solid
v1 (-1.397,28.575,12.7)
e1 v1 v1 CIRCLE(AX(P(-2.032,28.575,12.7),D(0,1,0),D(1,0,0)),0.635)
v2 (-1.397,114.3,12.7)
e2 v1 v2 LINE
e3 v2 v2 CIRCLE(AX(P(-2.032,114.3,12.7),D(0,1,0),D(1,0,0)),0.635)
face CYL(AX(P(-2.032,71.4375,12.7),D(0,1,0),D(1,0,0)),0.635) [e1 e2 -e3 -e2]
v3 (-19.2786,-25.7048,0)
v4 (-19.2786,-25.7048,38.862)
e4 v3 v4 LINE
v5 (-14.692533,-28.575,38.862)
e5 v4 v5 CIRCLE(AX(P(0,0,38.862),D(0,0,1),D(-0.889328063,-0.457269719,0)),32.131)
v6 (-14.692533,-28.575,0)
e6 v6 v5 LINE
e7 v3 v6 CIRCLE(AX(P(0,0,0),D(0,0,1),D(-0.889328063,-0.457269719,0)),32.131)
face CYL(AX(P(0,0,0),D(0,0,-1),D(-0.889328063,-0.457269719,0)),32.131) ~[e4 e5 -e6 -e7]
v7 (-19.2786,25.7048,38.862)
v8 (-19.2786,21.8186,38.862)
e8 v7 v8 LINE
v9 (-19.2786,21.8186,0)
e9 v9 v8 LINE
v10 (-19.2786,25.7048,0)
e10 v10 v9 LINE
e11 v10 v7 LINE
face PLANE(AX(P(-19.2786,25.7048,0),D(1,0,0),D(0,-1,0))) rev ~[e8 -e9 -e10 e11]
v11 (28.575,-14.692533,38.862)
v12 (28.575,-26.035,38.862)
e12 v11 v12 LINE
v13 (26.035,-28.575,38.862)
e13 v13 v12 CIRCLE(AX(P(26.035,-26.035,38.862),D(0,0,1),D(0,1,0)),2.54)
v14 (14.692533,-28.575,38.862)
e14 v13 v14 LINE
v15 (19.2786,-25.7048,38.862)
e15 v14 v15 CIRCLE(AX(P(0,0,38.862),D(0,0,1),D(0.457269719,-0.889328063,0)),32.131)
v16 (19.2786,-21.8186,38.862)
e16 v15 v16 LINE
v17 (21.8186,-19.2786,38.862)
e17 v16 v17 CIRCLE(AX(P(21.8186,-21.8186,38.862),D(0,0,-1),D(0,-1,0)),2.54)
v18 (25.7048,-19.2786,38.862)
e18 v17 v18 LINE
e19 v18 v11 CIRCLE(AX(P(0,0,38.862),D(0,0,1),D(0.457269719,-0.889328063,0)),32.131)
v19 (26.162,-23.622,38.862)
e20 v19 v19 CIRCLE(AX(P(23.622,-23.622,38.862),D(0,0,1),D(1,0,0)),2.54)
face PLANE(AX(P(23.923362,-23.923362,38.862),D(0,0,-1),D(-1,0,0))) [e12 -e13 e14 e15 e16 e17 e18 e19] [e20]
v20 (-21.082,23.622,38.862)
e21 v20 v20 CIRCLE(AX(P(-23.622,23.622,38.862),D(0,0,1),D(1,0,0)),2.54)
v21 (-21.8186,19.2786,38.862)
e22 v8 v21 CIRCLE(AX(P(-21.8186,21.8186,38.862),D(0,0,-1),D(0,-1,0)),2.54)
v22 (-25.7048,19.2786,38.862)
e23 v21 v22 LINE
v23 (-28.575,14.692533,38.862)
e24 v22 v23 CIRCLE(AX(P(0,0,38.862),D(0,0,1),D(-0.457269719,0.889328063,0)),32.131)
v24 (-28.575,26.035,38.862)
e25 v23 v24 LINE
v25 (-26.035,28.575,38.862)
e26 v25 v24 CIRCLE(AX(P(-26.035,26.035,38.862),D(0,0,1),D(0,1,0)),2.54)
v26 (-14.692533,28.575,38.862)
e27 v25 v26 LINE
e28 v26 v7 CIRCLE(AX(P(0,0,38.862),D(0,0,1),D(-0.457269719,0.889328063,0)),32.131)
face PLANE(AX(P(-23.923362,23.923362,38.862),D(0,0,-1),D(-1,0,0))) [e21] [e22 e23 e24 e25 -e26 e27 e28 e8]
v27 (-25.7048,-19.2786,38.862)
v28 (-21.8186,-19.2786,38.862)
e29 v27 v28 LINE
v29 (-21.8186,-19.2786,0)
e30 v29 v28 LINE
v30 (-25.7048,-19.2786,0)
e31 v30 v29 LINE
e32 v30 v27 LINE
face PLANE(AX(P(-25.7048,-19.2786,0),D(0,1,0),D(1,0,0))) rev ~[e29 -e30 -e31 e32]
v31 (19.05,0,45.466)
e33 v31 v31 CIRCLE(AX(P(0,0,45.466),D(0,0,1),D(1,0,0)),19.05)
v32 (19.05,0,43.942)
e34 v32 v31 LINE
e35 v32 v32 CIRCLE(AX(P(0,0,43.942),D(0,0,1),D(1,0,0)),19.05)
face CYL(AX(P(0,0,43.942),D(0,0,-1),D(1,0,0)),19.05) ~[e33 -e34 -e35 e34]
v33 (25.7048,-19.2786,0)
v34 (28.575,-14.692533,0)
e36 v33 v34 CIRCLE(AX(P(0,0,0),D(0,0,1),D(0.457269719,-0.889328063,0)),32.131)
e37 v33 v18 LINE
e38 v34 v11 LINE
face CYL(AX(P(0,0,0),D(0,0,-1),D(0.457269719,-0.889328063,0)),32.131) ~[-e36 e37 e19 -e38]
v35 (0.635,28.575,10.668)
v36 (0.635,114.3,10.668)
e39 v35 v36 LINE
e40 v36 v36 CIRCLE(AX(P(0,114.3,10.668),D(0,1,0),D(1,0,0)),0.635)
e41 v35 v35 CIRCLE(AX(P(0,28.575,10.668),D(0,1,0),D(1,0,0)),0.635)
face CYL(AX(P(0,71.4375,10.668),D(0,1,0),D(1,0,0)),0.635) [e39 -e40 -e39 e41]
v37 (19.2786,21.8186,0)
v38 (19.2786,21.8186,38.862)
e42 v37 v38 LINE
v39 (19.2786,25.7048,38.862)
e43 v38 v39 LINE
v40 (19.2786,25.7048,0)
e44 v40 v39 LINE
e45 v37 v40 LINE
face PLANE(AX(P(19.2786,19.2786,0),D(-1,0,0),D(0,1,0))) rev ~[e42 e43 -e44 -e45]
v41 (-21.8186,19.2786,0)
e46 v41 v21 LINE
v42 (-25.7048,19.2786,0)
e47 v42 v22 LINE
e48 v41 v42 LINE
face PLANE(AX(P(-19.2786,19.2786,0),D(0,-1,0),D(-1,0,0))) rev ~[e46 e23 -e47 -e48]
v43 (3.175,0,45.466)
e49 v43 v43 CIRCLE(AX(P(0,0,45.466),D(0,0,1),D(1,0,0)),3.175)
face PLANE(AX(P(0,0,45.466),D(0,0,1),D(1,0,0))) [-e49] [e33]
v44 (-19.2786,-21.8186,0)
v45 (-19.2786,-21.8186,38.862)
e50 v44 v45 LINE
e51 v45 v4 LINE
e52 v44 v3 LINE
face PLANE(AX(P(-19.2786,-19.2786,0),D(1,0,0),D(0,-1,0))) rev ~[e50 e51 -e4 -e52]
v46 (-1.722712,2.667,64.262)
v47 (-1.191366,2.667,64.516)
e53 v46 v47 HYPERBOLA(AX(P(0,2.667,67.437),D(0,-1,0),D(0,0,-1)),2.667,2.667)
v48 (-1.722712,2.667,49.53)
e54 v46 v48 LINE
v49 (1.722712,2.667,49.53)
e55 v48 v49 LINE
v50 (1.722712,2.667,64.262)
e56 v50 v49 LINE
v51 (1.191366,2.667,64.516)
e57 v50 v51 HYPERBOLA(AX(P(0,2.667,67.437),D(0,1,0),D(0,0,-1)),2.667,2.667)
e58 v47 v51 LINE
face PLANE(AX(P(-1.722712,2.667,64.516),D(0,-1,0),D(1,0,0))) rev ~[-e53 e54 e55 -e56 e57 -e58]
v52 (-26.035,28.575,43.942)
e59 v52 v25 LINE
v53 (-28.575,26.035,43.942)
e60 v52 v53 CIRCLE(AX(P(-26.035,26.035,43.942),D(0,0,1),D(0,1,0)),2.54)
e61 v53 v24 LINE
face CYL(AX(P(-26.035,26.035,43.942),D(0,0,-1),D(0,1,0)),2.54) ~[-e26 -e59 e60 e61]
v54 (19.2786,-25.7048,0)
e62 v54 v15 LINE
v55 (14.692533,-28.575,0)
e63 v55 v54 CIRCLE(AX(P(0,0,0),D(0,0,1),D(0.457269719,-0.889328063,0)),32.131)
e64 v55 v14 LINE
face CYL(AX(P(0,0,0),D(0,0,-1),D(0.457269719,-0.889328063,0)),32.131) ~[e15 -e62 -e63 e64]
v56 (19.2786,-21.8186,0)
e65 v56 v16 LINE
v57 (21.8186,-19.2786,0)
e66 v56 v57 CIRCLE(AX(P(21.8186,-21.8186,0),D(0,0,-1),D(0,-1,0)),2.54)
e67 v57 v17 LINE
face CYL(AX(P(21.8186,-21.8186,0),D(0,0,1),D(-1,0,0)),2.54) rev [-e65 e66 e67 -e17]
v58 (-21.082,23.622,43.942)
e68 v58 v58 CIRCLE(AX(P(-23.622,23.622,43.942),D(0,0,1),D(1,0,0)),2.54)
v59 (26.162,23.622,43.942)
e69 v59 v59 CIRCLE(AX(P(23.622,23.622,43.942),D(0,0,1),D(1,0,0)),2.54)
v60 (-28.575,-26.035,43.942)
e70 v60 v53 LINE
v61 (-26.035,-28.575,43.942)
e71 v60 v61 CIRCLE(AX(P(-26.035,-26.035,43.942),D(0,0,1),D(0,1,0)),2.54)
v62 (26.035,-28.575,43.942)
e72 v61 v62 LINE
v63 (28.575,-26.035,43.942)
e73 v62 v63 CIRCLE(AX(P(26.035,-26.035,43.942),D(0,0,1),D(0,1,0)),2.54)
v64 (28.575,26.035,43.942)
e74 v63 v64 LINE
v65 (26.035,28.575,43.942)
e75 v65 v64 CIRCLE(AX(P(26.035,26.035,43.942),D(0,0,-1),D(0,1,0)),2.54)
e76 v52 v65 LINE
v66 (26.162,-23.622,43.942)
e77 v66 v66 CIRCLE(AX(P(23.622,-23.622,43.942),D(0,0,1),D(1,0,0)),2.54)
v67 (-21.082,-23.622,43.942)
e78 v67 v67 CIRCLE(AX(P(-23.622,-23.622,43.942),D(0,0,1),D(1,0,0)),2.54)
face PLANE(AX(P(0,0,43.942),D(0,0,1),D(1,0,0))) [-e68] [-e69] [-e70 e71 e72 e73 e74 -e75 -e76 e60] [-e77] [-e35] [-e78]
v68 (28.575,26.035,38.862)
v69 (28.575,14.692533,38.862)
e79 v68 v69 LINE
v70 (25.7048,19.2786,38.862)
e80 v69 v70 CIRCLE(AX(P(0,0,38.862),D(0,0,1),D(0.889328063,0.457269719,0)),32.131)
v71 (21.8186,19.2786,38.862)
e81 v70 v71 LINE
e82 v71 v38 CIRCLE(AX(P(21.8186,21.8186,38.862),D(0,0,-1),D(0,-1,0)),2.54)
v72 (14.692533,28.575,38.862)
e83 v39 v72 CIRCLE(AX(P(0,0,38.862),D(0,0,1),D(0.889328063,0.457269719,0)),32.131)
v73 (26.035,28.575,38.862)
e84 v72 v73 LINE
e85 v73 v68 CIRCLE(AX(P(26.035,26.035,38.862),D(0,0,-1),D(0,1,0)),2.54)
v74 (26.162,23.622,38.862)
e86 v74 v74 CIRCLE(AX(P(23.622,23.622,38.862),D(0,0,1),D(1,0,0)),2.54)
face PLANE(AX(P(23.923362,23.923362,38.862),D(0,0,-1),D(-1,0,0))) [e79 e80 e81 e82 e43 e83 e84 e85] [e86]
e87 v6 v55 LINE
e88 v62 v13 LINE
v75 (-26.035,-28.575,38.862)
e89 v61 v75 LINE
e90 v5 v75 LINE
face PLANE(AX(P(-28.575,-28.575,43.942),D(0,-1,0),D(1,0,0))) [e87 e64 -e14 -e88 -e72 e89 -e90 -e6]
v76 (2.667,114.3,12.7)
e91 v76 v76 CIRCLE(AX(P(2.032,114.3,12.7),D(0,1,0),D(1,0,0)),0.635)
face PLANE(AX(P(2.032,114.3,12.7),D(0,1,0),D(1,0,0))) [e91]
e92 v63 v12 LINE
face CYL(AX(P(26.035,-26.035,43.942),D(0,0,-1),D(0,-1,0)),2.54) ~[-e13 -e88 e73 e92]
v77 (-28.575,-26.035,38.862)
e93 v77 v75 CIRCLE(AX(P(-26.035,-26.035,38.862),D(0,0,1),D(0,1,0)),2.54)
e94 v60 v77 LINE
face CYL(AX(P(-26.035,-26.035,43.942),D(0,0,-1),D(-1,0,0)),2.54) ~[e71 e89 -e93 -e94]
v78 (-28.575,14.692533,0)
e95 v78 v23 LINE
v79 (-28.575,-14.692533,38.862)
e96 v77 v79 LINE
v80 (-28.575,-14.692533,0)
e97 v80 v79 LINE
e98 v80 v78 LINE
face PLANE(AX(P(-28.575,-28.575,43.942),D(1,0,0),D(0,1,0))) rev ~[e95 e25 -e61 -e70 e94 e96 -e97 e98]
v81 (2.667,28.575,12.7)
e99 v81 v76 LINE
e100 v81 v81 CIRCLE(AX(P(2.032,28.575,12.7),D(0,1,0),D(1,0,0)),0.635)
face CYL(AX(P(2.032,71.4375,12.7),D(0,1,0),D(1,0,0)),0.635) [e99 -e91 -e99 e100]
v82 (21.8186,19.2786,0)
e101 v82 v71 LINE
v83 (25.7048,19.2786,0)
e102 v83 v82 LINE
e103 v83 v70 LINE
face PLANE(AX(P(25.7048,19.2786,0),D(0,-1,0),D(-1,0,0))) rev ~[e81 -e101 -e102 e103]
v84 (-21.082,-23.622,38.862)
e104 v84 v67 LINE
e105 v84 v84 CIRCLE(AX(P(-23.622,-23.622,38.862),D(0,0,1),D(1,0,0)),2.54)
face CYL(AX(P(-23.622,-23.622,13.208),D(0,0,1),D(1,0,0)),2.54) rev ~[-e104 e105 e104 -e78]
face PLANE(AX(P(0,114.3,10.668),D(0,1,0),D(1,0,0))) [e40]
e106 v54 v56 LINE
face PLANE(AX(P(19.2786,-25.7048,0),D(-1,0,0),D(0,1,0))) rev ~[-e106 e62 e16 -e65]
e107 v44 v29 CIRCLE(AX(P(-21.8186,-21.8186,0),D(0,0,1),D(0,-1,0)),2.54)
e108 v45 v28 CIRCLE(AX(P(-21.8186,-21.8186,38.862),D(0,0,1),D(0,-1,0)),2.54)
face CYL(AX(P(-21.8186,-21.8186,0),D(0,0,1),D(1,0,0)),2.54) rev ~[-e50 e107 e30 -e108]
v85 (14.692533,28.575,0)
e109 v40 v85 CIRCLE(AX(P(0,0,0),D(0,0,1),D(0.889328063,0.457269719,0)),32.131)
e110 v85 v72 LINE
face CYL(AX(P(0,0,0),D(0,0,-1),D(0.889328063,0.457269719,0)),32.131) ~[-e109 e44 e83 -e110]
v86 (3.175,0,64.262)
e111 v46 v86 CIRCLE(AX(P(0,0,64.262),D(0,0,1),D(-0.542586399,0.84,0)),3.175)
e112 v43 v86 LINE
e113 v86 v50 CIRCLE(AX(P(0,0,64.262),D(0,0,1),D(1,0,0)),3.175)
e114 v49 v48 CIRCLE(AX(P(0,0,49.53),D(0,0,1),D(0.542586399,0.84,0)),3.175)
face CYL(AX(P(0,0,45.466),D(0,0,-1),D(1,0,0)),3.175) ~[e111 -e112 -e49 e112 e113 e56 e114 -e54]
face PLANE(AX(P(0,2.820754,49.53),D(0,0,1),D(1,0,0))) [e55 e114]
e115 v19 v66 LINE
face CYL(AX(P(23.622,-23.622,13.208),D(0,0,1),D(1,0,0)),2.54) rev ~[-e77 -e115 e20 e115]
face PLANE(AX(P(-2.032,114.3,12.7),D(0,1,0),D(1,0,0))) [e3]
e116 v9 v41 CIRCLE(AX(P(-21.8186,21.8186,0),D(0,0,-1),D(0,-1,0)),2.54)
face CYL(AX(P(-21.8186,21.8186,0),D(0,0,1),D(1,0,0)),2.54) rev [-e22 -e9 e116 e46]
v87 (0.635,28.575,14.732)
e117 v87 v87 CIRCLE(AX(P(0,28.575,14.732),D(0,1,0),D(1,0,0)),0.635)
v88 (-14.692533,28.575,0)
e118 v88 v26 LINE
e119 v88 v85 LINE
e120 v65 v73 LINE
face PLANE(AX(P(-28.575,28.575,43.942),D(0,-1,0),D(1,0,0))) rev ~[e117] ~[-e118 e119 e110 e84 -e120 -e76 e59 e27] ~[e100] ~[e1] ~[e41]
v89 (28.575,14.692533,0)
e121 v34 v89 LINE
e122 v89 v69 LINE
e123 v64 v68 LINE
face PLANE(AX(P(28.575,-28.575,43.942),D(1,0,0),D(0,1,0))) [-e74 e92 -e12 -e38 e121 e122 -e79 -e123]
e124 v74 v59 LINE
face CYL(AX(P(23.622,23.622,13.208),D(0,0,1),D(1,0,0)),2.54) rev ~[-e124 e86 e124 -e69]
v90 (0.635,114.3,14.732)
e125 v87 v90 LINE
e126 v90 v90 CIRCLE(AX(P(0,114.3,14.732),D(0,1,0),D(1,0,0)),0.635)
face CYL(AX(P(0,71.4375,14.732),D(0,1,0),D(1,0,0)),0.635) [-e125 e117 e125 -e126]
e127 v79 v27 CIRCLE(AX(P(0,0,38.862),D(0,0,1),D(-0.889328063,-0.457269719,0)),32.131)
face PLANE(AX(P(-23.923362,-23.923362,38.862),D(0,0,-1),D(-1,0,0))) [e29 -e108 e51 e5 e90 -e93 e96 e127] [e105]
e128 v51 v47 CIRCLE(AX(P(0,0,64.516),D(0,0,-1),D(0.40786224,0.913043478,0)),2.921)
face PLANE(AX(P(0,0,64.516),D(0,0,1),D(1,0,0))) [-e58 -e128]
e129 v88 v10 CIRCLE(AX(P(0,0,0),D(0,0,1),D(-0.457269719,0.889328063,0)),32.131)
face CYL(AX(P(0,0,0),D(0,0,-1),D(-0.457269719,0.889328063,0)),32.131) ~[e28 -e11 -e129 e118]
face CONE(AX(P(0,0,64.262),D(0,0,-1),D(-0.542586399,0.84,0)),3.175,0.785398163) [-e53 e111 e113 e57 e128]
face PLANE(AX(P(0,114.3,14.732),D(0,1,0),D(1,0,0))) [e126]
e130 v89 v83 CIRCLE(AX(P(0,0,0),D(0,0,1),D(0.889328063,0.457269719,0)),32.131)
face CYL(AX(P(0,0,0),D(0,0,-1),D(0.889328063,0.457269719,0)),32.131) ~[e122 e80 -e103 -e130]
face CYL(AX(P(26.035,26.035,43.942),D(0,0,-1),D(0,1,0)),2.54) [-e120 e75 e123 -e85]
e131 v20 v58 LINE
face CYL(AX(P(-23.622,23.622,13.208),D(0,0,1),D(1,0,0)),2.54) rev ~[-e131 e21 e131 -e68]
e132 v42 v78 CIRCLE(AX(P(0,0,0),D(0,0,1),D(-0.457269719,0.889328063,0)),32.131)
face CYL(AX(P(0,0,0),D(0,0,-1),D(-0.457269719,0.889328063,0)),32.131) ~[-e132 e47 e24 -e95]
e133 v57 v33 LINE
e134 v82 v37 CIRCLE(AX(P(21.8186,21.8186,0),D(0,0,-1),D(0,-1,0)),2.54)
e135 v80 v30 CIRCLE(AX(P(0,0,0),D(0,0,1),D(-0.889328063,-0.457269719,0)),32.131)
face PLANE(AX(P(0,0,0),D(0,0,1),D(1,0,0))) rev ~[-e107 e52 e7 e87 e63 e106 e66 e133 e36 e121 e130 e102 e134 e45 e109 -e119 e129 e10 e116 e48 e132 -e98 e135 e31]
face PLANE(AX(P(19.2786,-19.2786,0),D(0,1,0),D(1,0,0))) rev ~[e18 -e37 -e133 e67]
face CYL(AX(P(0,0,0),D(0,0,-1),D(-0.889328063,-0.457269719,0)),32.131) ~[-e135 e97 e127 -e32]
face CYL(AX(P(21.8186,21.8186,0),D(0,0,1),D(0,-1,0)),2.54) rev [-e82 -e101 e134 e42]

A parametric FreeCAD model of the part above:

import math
import FreeCAD as App
import Part
import Sketcher
Q = App.Units.Quantity


def edges_at(feature, points):
    """Names of the edges that pass closest to the given points."""
    edges = feature.Shape.Edges
    near = lambda p: min(range(len(edges)), key=lambda i: edges[i].distToShape(Part.Vertex(*p))[0])
    return sorted({f"Edge{near(p) + 1}" for p in points})


def add_polygon(sketch, points):
    """Adds a closed chain of lines whose ends are joined by coincident constraints."""
    first, n = sketch.GeometryCount, len(points)
    for a, b in zip(points, points[1:] + points[:1]):
        sketch.addGeometry(Part.LineSegment(App.Vector(*a, 0), App.Vector(*b, 0)), False)
    for i in range(n):
        sketch.addConstraint(Sketcher.Constraint("Coincident", first + i, 2, first + (i + 1) % n, 1))

doc = App.newDocument("Part")
body = doc.addObject("PartDesign::Body", "Body")

# Sketch on XY plane
sketch1 = body.newObject("Sketcher::SketchObject", "Sketch")
sketch1.AttachmentSupport = (doc.getObject("XY_Plane"), [""])
sketch1.MapMode = "FlatFace"
sketch1.AttachmentOffset = App.Placement(App.Vector(0, 0, 1.73 * 25.4), App.Rotation())
add_polygon(sketch1, [(-29, 29), (-29, -29), (29, -29), (29, 29)])  # lines 0-3
sketch1.addConstraint(Sketcher.Constraint("Vertical", 0))
sketch1.addConstraint(Sketcher.Constraint("Horizontal", 1))
sketch1.addConstraint(Sketcher.Constraint("Vertical", 2))
sketch1.addConstraint(Sketcher.Constraint("Horizontal", 3))
sketch1.addConstraint(Sketcher.Constraint("Symmetric", 0, 2, 2, 2, -1, 1))
sketch1.addConstraint(Sketcher.Constraint("Equal", 3, 0))
sketch1.addConstraint(Sketcher.Constraint("DistanceX", 1, 1, 1, 2, Q("2.25 in")))
pad1 = body.newObject("PartDesign::Pad", "Pad")
pad1.Profile = sketch1
pad1.Length = Q("1.73 in")
pad1.Reversed = True

# Sketch on XY plane
sketch2 = body.newObject("Sketcher::SketchObject", "Sketch001")
sketch2.AttachmentSupport = (doc.getObject("XY_Plane"), [""])
sketch2.MapMode = "FlatFace"
sketch2.addGeometry(Part.LineSegment(App.Vector(29, -29, 0), App.Vector(15, -29, 0)), False)
sketch2.addGeometry(Part.ArcOfCircle(Part.Circle(App.Vector(0, 0, 0), App.Vector(0, 0, 1), 32), math.radians(-63), math.radians(-27)), False)
sketch2.addGeometry(Part.LineSegment(App.Vector(29, -15, 0), App.Vector(29, -29, 0)), False)
sketch2.addConstraint(Sketcher.Constraint("Coincident", 0, 2, 1, 1))
sketch2.addConstraint(Sketcher.Constraint("Coincident", 1, 2, 2, 1))
sketch2.addConstraint(Sketcher.Constraint("Coincident", 2, 2, 0, 1))
sketch2.addConstraint(Sketcher.Constraint("Horizontal", 0))
sketch2.addConstraint(Sketcher.Constraint("Vertical", 2))
sketch2.addConstraint(Sketcher.Constraint("Coincident", 1, 3, -1, 1))
sketch2.addConstraint(Sketcher.Constraint("Equal", 0, 2))
sketch2.addConstraint(Sketcher.Constraint("Radius", 1, Q("1.265 in")))
sketch2.addConstraint(Sketcher.Constraint("DistanceY", 0, 2, -1, 1, Q("1.125 in")))
pocket1 = body.newObject("PartDesign::Pocket", "Pocket")
pocket1.Profile = sketch2
pocket1.Length = Q("1.53 in")
pocket1.Reversed = True

# Sketch on XY plane
sketch3 = body.newObject("Sketcher::SketchObject", "Sketch002")
sketch3.AttachmentSupport = (doc.getObject("XY_Plane"), [""])
sketch3.MapMode = "FlatFace"
sketch3.addGeometry(Part.LineSegment(App.Vector(19, -26, 0), App.Vector(19, -19, 0)), False)
sketch3.addGeometry(Part.LineSegment(App.Vector(19, -19, 0), App.Vector(26, -19, 0)), False)
sketch3.addGeometry(Part.ArcOfCircle(Part.Circle(App.Vector(0, 0, 0), App.Vector(0, 0, 1), 32), math.radians(-53.13), math.radians(-36.87)), False)
sketch3.addConstraint(Sketcher.Constraint("Coincident", 0, 2, 1, 1))
sketch3.addConstraint(Sketcher.Constraint("Coincident", 1, 2, 2, 2))
sketch3.addConstraint(Sketcher.Constraint("Coincident", 2, 1, 0, 1))
sketch3.addConstraint(Sketcher.Constraint("Vertical", 0))
sketch3.addConstraint(Sketcher.Constraint("Horizontal", 1))
sketch3.addConstraint(Sketcher.Constraint("Coincident", 2, 3, -1, 1))
sketch3.addConstraint(Sketcher.Constraint("Equal", 1, 0))
sketch3.addConstraint(Sketcher.Constraint("Radius", 2, Q("1.265 in")))
sketch3.addConstraint(Sketcher.Constraint("DistanceX", 1, 1, 1, 2, Q("0.253 in")))
pocket2 = body.newObject("PartDesign::Pocket", "Pocket001")
pocket2.Profile = sketch3
pocket2.Length = Q("1.53 in")
pocket2.Reversed = True

# Sketch on XY plane
sketch4 = body.newObject("Sketcher::SketchObject", "Sketch003")
sketch4.AttachmentSupport = (doc.getObject("XY_Plane"), [""])
sketch4.MapMode = "FlatFace"
sketch4.addGeometry(Part.LineSegment(App.Vector(29, 29, 0), App.Vector(29, 15, 0)), False)
sketch4.addGeometry(Part.ArcOfCircle(Part.Circle(App.Vector(0, 0, 0), App.Vector(0, 0, 1), 32), math.radians(27), math.radians(63)), False)
sketch4.addGeometry(Part.LineSegment(App.Vector(15, 29, 0), App.Vector(29, 29, 0)), False)
sketch4.addConstraint(Sketcher.Constraint("Coincident", 0, 2, 1, 1))
sketch4.addConstraint(Sketcher.Constraint("Coincident", 1, 2, 2, 1))
sketch4.addConstraint(Sketcher.Constraint("Coincident", 2, 2, 0, 1))
sketch4.addConstraint(Sketcher.Constraint("Vertical", 0))
sketch4.addConstraint(Sketcher.Constraint("Horizontal", 2))
sketch4.addConstraint(Sketcher.Constraint("Coincident", 1, 3, -1, 1))
sketch4.addConstraint(Sketcher.Constraint("Equal", 2, 0))
sketch4.addConstraint(Sketcher.Constraint("Radius", 1, Q("1.265 in")))
sketch4.addConstraint(Sketcher.Constraint("DistanceX", -1, 1, 0, 2, Q("1.125 in")))
pocket3 = body.newObject("PartDesign::Pocket", "Pocket002")
pocket3.Profile = sketch4
pocket3.Length = Q("1.53 in")
pocket3.Reversed = True

# Sketch on XY plane
sketch5 = body.newObject("Sketcher::SketchObject", "Sketch004")
sketch5.AttachmentSupport = (doc.getObject("XY_Plane"), [""])
sketch5.MapMode = "FlatFace"
sketch5.addGeometry(Part.LineSegment(App.Vector(26, 19, 0), App.Vector(19, 19, 0)), False)
sketch5.addGeometry(Part.LineSegment(App.Vector(19, 19, 0), App.Vector(19, 26, 0)), False)
sketch5.addGeometry(Part.ArcOfCircle(Part.Circle(App.Vector(0, 0, 0), App.Vector(0, 0, 1), 32), math.radians(36.87), math.radians(53.13)), False)
sketch5.addConstraint(Sketcher.Constraint("Coincident", 0, 2, 1, 1))
sketch5.addConstraint(Sketcher.Constraint("Coincident", 1, 2, 2, 2))
sketch5.addConstraint(Sketcher.Constraint("Coincident", 2, 1, 0, 1))
sketch5.addConstraint(Sketcher.Constraint("Horizontal", 0))
sketch5.addConstraint(Sketcher.Constraint("Vertical", 1))
sketch5.addConstraint(Sketcher.Constraint("Coincident", 2, 3, -1, 1))
sketch5.addConstraint(Sketcher.Constraint("Equal", 0, 1))
sketch5.addConstraint(Sketcher.Constraint("Radius", 2, Q("1.265 in")))
sketch5.addConstraint(Sketcher.Constraint("DistanceX", 0, 2, 0, 1, Q("0.253 in")))
pocket4 = body.newObject("PartDesign::Pocket", "Pocket003")
pocket4.Profile = sketch5
pocket4.Length = Q("1.53 in")
pocket4.Reversed = True

# Sketch on XY plane
sketch6 = body.newObject("Sketcher::SketchObject", "Sketch005")
sketch6.AttachmentSupport = (doc.getObject("XY_Plane"), [""])
sketch6.MapMode = "FlatFace"
sketch6.addGeometry(Part.LineSegment(App.Vector(-29, 29, 0), App.Vector(-15, 29, 0)), False)
sketch6.addGeometry(Part.ArcOfCircle(Part.Circle(App.Vector(0, 0, 0), App.Vector(0, 0, 1), 32), math.radians(117), math.radians(153)), False)
sketch6.addGeometry(Part.LineSegment(App.Vector(-29, 15, 0), App.Vector(-29, 29, 0)), False)
sketch6.addConstraint(Sketcher.Constraint("Coincident", 0, 2, 1, 1))
sketch6.addConstraint(Sketcher.Constraint("Coincident", 1, 2, 2, 1))
sketch6.addConstraint(Sketcher.Constraint("Coincident", 2, 2, 0, 1))
sketch6.addConstraint(Sketcher.Constraint("Horizontal", 0))
sketch6.addConstraint(Sketcher.Constraint("Vertical", 2))
sketch6.addConstraint(Sketcher.Constraint("Coincident", 1, 3, -1, 1))
sketch6.addConstraint(Sketcher.Constraint("Equal", 0, 2))
sketch6.addConstraint(Sketcher.Constraint("Radius", 1, Q("1.265 in")))
sketch6.addConstraint(Sketcher.Constraint("DistanceY", -1, 1, 0, 2, Q("1.125 in")))
pocket5 = body.newObject("PartDesign::Pocket", "Pocket004")
pocket5.Profile = sketch6
pocket5.Length = Q("1.53 in")
pocket5.Reversed = True

# Sketch on XY plane
sketch7 = body.newObject("Sketcher::SketchObject", "Sketch006")
sketch7.AttachmentSupport = (doc.getObject("XY_Plane"), [""])
sketch7.MapMode = "FlatFace"
sketch7.addGeometry(Part.LineSegment(App.Vector(-19, 26, 0), App.Vector(-19, 19, 0)), False)
sketch7.addGeometry(Part.LineSegment(App.Vector(-19, 19, 0), App.Vector(-26, 19, 0)), False)
sketch7.addGeometry(Part.ArcOfCircle(Part.Circle(App.Vector(0, 0, 0), App.Vector(0, 0, 1), 32), math.radians(126.87), math.radians(143.13)), False)
sketch7.addConstraint(Sketcher.Constraint("Coincident", 0, 2, 1, 1))
sketch7.addConstraint(Sketcher.Constraint("Coincident", 1, 2, 2, 2))
sketch7.addConstraint(Sketcher.Constraint("Coincident", 2, 1, 0, 1))
sketch7.addConstraint(Sketcher.Constraint("Vertical", 0))
sketch7.addConstraint(Sketcher.Constraint("Horizontal", 1))
sketch7.addConstraint(Sketcher.Constraint("Coincident", 2, 3, -1, 1))
sketch7.addConstraint(Sketcher.Constraint("Equal", 1, 0))
sketch7.addConstraint(Sketcher.Constraint("Radius", 2, Q("1.265 in")))
sketch7.addConstraint(Sketcher.Constraint("DistanceX", 1, 2, 1, 1, Q("0.253 in")))
pocket6 = body.newObject("PartDesign::Pocket", "Pocket005")
pocket6.Profile = sketch7
pocket6.Length = Q("1.53 in")
pocket6.Reversed = True

# Sketch on XY plane
sketch8 = body.newObject("Sketcher::SketchObject", "Sketch007")
sketch8.AttachmentSupport = (doc.getObject("XY_Plane"), [""])
sketch8.MapMode = "FlatFace"
sketch8.addGeometry(Part.LineSegment(App.Vector(-29, -29, 0), App.Vector(-29, -15, 0)), False)
sketch8.addGeometry(Part.ArcOfCircle(Part.Circle(App.Vector(0, 0, 0), App.Vector(0, 0, 1), 32), math.radians(-153), math.radians(-117)), False)
sketch8.addGeometry(Part.LineSegment(App.Vector(-15, -29, 0), App.Vector(-29, -29, 0)), False)
sketch8.addConstraint(Sketcher.Constraint("Coincident", 0, 2, 1, 1))
sketch8.addConstraint(Sketcher.Constraint("Coincident", 1, 2, 2, 1))
sketch8.addConstraint(Sketcher.Constraint("Coincident", 2, 2, 0, 1))
sketch8.addConstraint(Sketcher.Constraint("Vertical", 0))
sketch8.addConstraint(Sketcher.Constraint("Horizontal", 2))
sketch8.addConstraint(Sketcher.Constraint("Coincident", 1, 3, -1, 1))
sketch8.addConstraint(Sketcher.Constraint("Equal", 2, 0))
sketch8.addConstraint(Sketcher.Constraint("Radius", 1, Q("1.265 in")))
sketch8.addConstraint(Sketcher.Constraint("DistanceX", 0, 2, -1, 1, Q("1.125 in")))
pocket7 = body.newObject("PartDesign::Pocket", "Pocket006")
pocket7.Profile = sketch8
pocket7.Length = Q("1.53 in")
pocket7.Reversed = True

# Sketch on XY plane
sketch9 = body.newObject("Sketcher::SketchObject", "Sketch008")
sketch9.AttachmentSupport = (doc.getObject("XY_Plane"), [""])
sketch9.MapMode = "FlatFace"
sketch9.addGeometry(Part.LineSegment(App.Vector(-26, -19, 0), App.Vector(-19, -19, 0)), False)
sketch9.addGeometry(Part.LineSegment(App.Vector(-19, -19, 0), App.Vector(-19, -26, 0)), False)
sketch9.addGeometry(Part.ArcOfCircle(Part.Circle(App.Vector(0, 0, 0), App.Vector(0, 0, 1), 32), math.radians(-143.13), math.radians(-126.87)), False)
sketch9.addConstraint(Sketcher.Constraint("Coincident", 0, 2, 1, 1))
sketch9.addConstraint(Sketcher.Constraint("Coincident", 1, 2, 2, 2))
sketch9.addConstraint(Sketcher.Constraint("Coincident", 2, 1, 0, 1))
sketch9.addConstraint(Sketcher.Constraint("Horizontal", 0))
sketch9.addConstraint(Sketcher.Constraint("Vertical", 1))
sketch9.addConstraint(Sketcher.Constraint("Coincident", 2, 3, -1, 1))
sketch9.addConstraint(Sketcher.Constraint("Equal", 0, 1))
sketch9.addConstraint(Sketcher.Constraint("Radius", 2, Q("1.265 in")))
sketch9.addConstraint(Sketcher.Constraint("DistanceX", 0, 1, 0, 2, Q("0.253 in")))
pocket8 = body.newObject("PartDesign::Pocket", "Pocket007")
pocket8.Profile = sketch9
pocket8.Length = Q("1.53 in")
pocket8.Reversed = True

# Sketch on XY plane
sketch10 = body.newObject("Sketcher::SketchObject", "Sketch009")
sketch10.AttachmentSupport = (doc.getObject("XY_Plane"), [""])
sketch10.MapMode = "FlatFace"
sketch10.AttachmentOffset = App.Placement(App.Vector(0, 0, 1.73 * 25.4), App.Rotation())
sketch10.addGeometry(Part.Circle(App.Vector(0, 0, 0), App.Vector(0, 0, 1), 19), False)
sketch10.addConstraint(Sketcher.Constraint("Coincident", 0, 3, -1, 1))
sketch10.addConstraint(Sketcher.Constraint("Diameter", 0, Q("1.5 in")))
pad2 = body.newObject("PartDesign::Pad", "Pad001")
pad2.Profile = sketch10
pad2.Length = Q("0.06 in")

# Sketch on XY plane
sketch11 = body.newObject("Sketcher::SketchObject", "Sketch010")
sketch11.AttachmentSupport = (doc.getObject("XY_Plane"), [""])
sketch11.MapMode = "FlatFace"
sketch11.AttachmentOffset = App.Placement(App.Vector(0, 0, 1.79 * 25.4), App.Rotation())
sketch11.addGeometry(Part.Circle(App.Vector(0, 0, 0), App.Vector(0, 0, 1), 3.2), False)
sketch11.addConstraint(Sketcher.Constraint("Coincident", 0, 3, -1, 1))
sketch11.addConstraint(Sketcher.Constraint("Diameter", 0, Q("0.25 in")))
pad3 = body.newObject("PartDesign::Pad", "Pad002")
pad3.Profile = sketch11
pad3.Length = Q("0.75 in")

# Sketch on XY plane
sketch12 = body.newObject("Sketcher::SketchObject", "Sketch011")
sketch12.AttachmentSupport = (doc.getObject("XY_Plane"), [""])
sketch12.MapMode = "FlatFace"
sketch12.AttachmentOffset = App.Placement(App.Vector(0, 0, 2.54 * 25.4), App.Rotation())
sketch12.addGeometry(Part.LineSegment(App.Vector(-1.7, 2.7, 0), App.Vector(1.7, 2.7, 0)), False)
sketch12.addGeometry(Part.ArcOfCircle(Part.Circle(App.Vector(0, 0, 0), App.Vector(0, 0, 1), 3.2), math.radians(57), math.radians(123)), False)
sketch12.addConstraint(Sketcher.Constraint("Coincident", 0, 1, 1, 2))
sketch12.addConstraint(Sketcher.Constraint("Coincident", 1, 1, 0, 2))
sketch12.addConstraint(Sketcher.Constraint("Horizontal", 0))
sketch12.addConstraint(Sketcher.Constraint("Coincident", 1, 3, -1, 1))
sketch12.addConstraint(Sketcher.Constraint("Radius", 1, Q("0.125 in")))
sketch12.addConstraint(Sketcher.Constraint("DistanceY", -1, 1, 0, 1, Q("0.105 in")))
pocket9 = body.newObject("PartDesign::Pocket", "Pocket008")
pocket9.Profile = sketch12
pocket9.Length = Q("0.59 in")

# Sketch on XY plane
sketch13 = body.newObject("Sketcher::SketchObject", "Sketch012")
sketch13.AttachmentSupport = (doc.getObject("XY_Plane"), [""])
sketch13.MapMode = "FlatFace"
sketch13.AttachmentOffset = App.Placement(App.Vector(0, 0, 0.5 * 25.4), App.Rotation())
add_polygon(sketch13, [(-1.4, 114.3), (-1.4, 28.6), (-2, 28.6), (-2, 114.3)])  # lines 0-3
sketch13.addGeometry(Part.LineSegment(App.Vector(-2, 28.6, 0), App.Vector(-2, 114.3, 0)), True)  # axis
sketch13.addConstraint(Sketcher.Constraint("Vertical", 0))
sketch13.addConstraint(Sketcher.Constraint("Horizontal", 1))
sketch13.addConstraint(Sketcher.Constraint("Vertical", 2))
sketch13.addConstraint(Sketcher.Constraint("Horizontal", 3))
sketch13.addConstraint(Sketcher.Constraint("Vertical", 4))
sketch13.addConstraint(Sketcher.Constraint("Coincident", 4, 1, 1, 2))
sketch13.addConstraint(Sketcher.Constraint("Horizontal", 3, 2, 4, 2))
sketch13.addConstraint(Sketcher.Constraint("DistanceY", -1, 1, 2, 2, Q("4.5 in")))
sketch13.addConstraint(Sketcher.Constraint("DistanceX", 1, 2, 1, 1, Q("0.025 in")))
sketch13.addConstraint(Sketcher.Constraint("DistanceY", 0, 2, 0, 1, Q("3.375 in")))
sketch13.addConstraint(Sketcher.Constraint("DistanceX", 1, 2, -1, 1, Q("0.08 in")))
revolution = body.newObject("PartDesign::Revolution", "Revolution")
revolution.Profile = sketch13
revolution.ReferenceAxis = (sketch13, ["Axis0"])
revolution.Angle = 360

# Sketch on XY plane
sketch14 = body.newObject("Sketcher::SketchObject", "Sketch013")
sketch14.AttachmentSupport = (doc.getObject("XY_Plane"), [""])
sketch14.MapMode = "FlatFace"
sketch14.AttachmentOffset = App.Placement(App.Vector(0, 0, 0.5 * 25.4), App.Rotation())
add_polygon(sketch14, [(2.7, 114.3), (2.7, 28.6), (2, 28.6), (2, 114.3)])  # lines 0-3
sketch14.addGeometry(Part.LineSegment(App.Vector(2, 28.6, 0), App.Vector(2, 114.3, 0)), True)  # axis
sketch14.addConstraint(Sketcher.Constraint("Vertical", 0))
sketch14.addConstraint(Sketcher.Constraint("Horizontal", 1))
sketch14.addConstraint(Sketcher.Constraint("Vertical", 2))
sketch14.addConstraint(Sketcher.Constraint("Horizontal", 3))
sketch14.addConstraint(Sketcher.Constraint("Vertical", 4))
sketch14.addConstraint(Sketcher.Constraint("Coincident", 4, 1, 1, 2))
sketch14.addConstraint(Sketcher.Constraint("Horizontal", 3, 2, 4, 2))
sketch14.addConstraint(Sketcher.Constraint("DistanceY", -1, 1, 2, 2, Q("4.5 in")))
sketch14.addConstraint(Sketcher.Constraint("DistanceX", 1, 2, 1, 1, Q("0.025 in")))
sketch14.addConstraint(Sketcher.Constraint("DistanceY", 0, 2, 0, 1, Q("3.375 in")))
sketch14.addConstraint(Sketcher.Constraint("DistanceX", -1, 1, 1, 2, Q("0.08 in")))
revolution2 = body.newObject("PartDesign::Revolution", "Revolution001")
revolution2.Profile = sketch14
revolution2.ReferenceAxis = (sketch14, ["Axis0"])
revolution2.Angle = 360

# Sketch on XY plane
sketch15 = body.newObject("Sketcher::SketchObject", "Sketch014")
sketch15.AttachmentSupport = (doc.getObject("XY_Plane"), [""])
sketch15.MapMode = "FlatFace"
sketch15.AttachmentOffset = App.Placement(App.Vector(0, 0, 0.58 * 25.4), App.Rotation())
add_polygon(sketch15, [(0.6, 114.3), (0.6, 28.6), (0, 28.6), (0, 114.3)])  # lines 0-3
sketch15.addConstraint(Sketcher.Constraint("Vertical", 0))
sketch15.addConstraint(Sketcher.Constraint("Horizontal", 1))
sketch15.addConstraint(Sketcher.Constraint("Vertical", 2))
sketch15.addConstraint(Sketcher.Constraint("Horizontal", 3))
sketch15.addConstraint(Sketcher.Constraint("PointOnObject", 1, 2, -2))
sketch15.addConstraint(Sketcher.Constraint("DistanceY", -1, 1, 2, 2, Q("4.5 in")))
sketch15.addConstraint(Sketcher.Constraint("DistanceX", 1, 2, 1, 1, Q("0.025 in")))
sketch15.addConstraint(Sketcher.Constraint("DistanceY", 0, 2, 0, 1, Q("3.375 in")))
revolution3 = body.newObject("PartDesign::Revolution", "Revolution002")
revolution3.Profile = sketch15
revolution3.ReferenceAxis = (sketch15, ["V_Axis"])
revolution3.Angle = 360

# Sketch on XY plane
sketch16 = body.newObject("Sketcher::SketchObject", "Sketch015")
sketch16.AttachmentSupport = (doc.getObject("XY_Plane"), [""])
sketch16.MapMode = "FlatFace"
sketch16.AttachmentOffset = App.Placement(App.Vector(0, 0, 0.42 * 25.4), App.Rotation())
add_polygon(sketch16, [(0.6, 114.3), (0.6, 28.6), (0, 28.6), (0, 114.3)])  # lines 0-3
sketch16.addConstraint(Sketcher.Constraint("Vertical", 0))
sketch16.addConstraint(Sketcher.Constraint("Horizontal", 1))
sketch16.addConstraint(Sketcher.Constraint("Vertical", 2))
sketch16.addConstraint(Sketcher.Constraint("Horizontal", 3))
sketch16.addConstraint(Sketcher.Constraint("PointOnObject", 1, 2, -2))
sketch16.addConstraint(Sketcher.Constraint("DistanceY", -1, 1, 2, 2, Q("4.5 in")))
sketch16.addConstraint(Sketcher.Constraint("DistanceX", 1, 2, 1, 1, Q("0.025 in")))
sketch16.addConstraint(Sketcher.Constraint("DistanceY", 0, 2, 0, 1, Q("3.375 in")))
revolution4 = body.newObject("PartDesign::Revolution", "Revolution003")
revolution4.Profile = sketch16
revolution4.ReferenceAxis = (sketch16, ["V_Axis"])
revolution4.Angle = 360

# Sketch on XY plane
sketch17 = body.newObject("Sketcher::SketchObject", "Sketch016")
sketch17.AttachmentSupport = (doc.getObject("XY_Plane"), [""])
sketch17.MapMode = "FlatFace"
sketch17.AttachmentOffset = App.Placement(App.Vector(0, 0, 1.53 * 25.4), App.Rotation())
sketch17.addGeometry(Part.Circle(App.Vector(-23.6, -23.6, 0), App.Vector(0, 0, 1), 2.5), False)
sketch17.addConstraint(Sketcher.Constraint("Diameter", 0, Q("0.2 in")))
sketch17.addConstraint(Sketcher.Constraint("DistanceX", 0, 3, -1, 1, Q("0.93 in")))
sketch17.addConstraint(Sketcher.Constraint("DistanceY", 0, 3, -1, 1, Q("0.93 in")))
doc.recompute()
hole = body.newObject("PartDesign::Hole", "Hole")
hole.Profile = sketch17
hole.ThreadType = "None"
hole.Diameter = Q("0.2 in")
hole.DepthType = "Dimension"
hole.Depth = Q("1.01 in")
hole.DrillPoint = "Flat"
hole.Reversed = True

# Sketch on XY plane
sketch18 = body.newObject("Sketcher::SketchObject", "Sketch017")
sketch18.AttachmentSupport = (doc.getObject("XY_Plane"), [""])
sketch18.MapMode = "FlatFace"
sketch18.AttachmentOffset = App.Placement(App.Vector(0, 0, 1.53 * 25.4), App.Rotation())
sketch18.addGeometry(Part.Circle(App.Vector(-23.6, 23.6, 0), App.Vector(0, 0, 1), 2.5), False)
sketch18.addConstraint(Sketcher.Constraint("Diameter", 0, Q("0.2 in")))
sketch18.addConstraint(Sketcher.Constraint("DistanceX", 0, 3, -1, 1, Q("0.93 in")))
sketch18.addConstraint(Sketcher.Constraint("DistanceY", -1, 1, 0, 3, Q("0.93 in")))
doc.recompute()
hole2 = body.newObject("PartDesign::Hole", "Hole001")
hole2.Profile = sketch18
hole2.ThreadType = "None"
hole2.Diameter = Q("0.2 in")
hole2.DepthType = "Dimension"
hole2.Depth = Q("1.01 in")
hole2.DrillPoint = "Flat"
hole2.Reversed = True

# Sketch on XY plane
sketch19 = body.newObject("Sketcher::SketchObject", "Sketch018")
sketch19.AttachmentSupport = (doc.getObject("XY_Plane"), [""])
sketch19.MapMode = "FlatFace"
sketch19.AttachmentOffset = App.Placement(App.Vector(0, 0, 1.53 * 25.4), App.Rotation())
sketch19.addGeometry(Part.Circle(App.Vector(23.6, 23.6, 0), App.Vector(0, 0, 1), 2.5), False)
sketch19.addConstraint(Sketcher.Constraint("Diameter", 0, Q("0.2 in")))
sketch19.addConstraint(Sketcher.Constraint("DistanceX", -1, 1, 0, 3, Q("0.93 in")))
sketch19.addConstraint(Sketcher.Constraint("DistanceY", -1, 1, 0, 3, Q("0.93 in")))
doc.recompute()
hole3 = body.newObject("PartDesign::Hole", "Hole002")
hole3.Profile = sketch19
hole3.ThreadType = "None"
hole3.Diameter = Q("0.2 in")
hole3.DepthType = "Dimension"
hole3.Depth = Q("1.01 in")
hole3.DrillPoint = "Flat"
hole3.Reversed = True

# Sketch on XY plane
sketch20 = body.newObject("Sketcher::SketchObject", "Sketch019")
sketch20.AttachmentSupport = (doc.getObject("XY_Plane"), [""])
sketch20.MapMode = "FlatFace"
sketch20.AttachmentOffset = App.Placement(App.Vector(0, 0, 1.53 * 25.4), App.Rotation())
sketch20.addGeometry(Part.Circle(App.Vector(23.6, -23.6, 0), App.Vector(0, 0, 1), 2.5), False)
sketch20.addConstraint(Sketcher.Constraint("Diameter", 0, Q("0.2 in")))
sketch20.addConstraint(Sketcher.Constraint("DistanceX", -1, 1, 0, 3, Q("0.93 in")))
sketch20.addConstraint(Sketcher.Constraint("DistanceY", 0, 3, -1, 1, Q("0.93 in")))
doc.recompute()
hole4 = body.newObject("PartDesign::Hole", "Hole003")
hole4.Profile = sketch20
hole4.ThreadType = "None"
hole4.Diameter = Q("0.2 in")
hole4.DepthType = "Dimension"
hole4.Depth = Q("1.01 in")
hole4.DrillPoint = "Flat"
hole4.Reversed = True
doc.recompute()

chamfer = body.newObject("PartDesign::Chamfer", "Chamfer")
chamfer.Base = (hole4, edges_at(hole4, [(-1.518, -2.788, 64.516)]))
chamfer.Size = Q("0.01 in")
doc.recompute()

fillet = body.newObject("PartDesign::Fillet", "Fillet")
fillet.Base = (chamfer, edges_at(chamfer, [(-28.575, 28.575, 41.402)]))
fillet.Radius = Q("0.1 in")
doc.recompute()

fillet2 = body.newObject("PartDesign::Fillet", "Fillet001")
fillet2.Base = (fillet, edges_at(fillet, [(-28.575, -28.575, 41.402)]))
fillet2.Radius = Q("0.1 in")
doc.recompute()

fillet3 = body.newObject("PartDesign::Fillet", "Fillet002")
fillet3.Base = (fillet2, edges_at(fillet2, [(28.575, 28.575, 41.402)]))
fillet3.Radius = Q("0.1 in")
doc.recompute()

fillet4 = body.newObject("PartDesign::Fillet", "Fillet003")
fillet4.Base = (fillet3, edges_at(fillet3, [(-19.279, 19.279, 19.431)]))
fillet4.Radius = Q("0.1 in")
doc.recompute()

fillet5 = body.newObject("PartDesign::Fillet", "Fillet004")
fillet5.Base = (fillet4, edges_at(fillet4, [(28.575, -28.575, 41.402)]))
fillet5.Radius = Q("0.1 in")
doc.recompute()

fillet6 = body.newObject("PartDesign::Fillet", "Fillet005")
fillet6.Base = (fillet5, edges_at(fillet5, [(19.279, -19.279, 19.431)]))
fillet6.Radius = Q("0.1 in")
doc.recompute()

fillet7 = body.newObject("PartDesign::Fillet", "Fillet006")
fillet7.Base = (fillet6, edges_at(fillet6, [(19.279, 19.279, 19.431)]))
fillet7.Radius = Q("0.1 in")
doc.recompute()

fillet8 = body.newObject("PartDesign::Fillet", "Fillet007")
fillet8.Base = (fillet7, edges_at(fillet7, [(-19.279, -19.279, 19.431)]))
fillet8.Radius = Q("0.1 in")

doc.recompute()
